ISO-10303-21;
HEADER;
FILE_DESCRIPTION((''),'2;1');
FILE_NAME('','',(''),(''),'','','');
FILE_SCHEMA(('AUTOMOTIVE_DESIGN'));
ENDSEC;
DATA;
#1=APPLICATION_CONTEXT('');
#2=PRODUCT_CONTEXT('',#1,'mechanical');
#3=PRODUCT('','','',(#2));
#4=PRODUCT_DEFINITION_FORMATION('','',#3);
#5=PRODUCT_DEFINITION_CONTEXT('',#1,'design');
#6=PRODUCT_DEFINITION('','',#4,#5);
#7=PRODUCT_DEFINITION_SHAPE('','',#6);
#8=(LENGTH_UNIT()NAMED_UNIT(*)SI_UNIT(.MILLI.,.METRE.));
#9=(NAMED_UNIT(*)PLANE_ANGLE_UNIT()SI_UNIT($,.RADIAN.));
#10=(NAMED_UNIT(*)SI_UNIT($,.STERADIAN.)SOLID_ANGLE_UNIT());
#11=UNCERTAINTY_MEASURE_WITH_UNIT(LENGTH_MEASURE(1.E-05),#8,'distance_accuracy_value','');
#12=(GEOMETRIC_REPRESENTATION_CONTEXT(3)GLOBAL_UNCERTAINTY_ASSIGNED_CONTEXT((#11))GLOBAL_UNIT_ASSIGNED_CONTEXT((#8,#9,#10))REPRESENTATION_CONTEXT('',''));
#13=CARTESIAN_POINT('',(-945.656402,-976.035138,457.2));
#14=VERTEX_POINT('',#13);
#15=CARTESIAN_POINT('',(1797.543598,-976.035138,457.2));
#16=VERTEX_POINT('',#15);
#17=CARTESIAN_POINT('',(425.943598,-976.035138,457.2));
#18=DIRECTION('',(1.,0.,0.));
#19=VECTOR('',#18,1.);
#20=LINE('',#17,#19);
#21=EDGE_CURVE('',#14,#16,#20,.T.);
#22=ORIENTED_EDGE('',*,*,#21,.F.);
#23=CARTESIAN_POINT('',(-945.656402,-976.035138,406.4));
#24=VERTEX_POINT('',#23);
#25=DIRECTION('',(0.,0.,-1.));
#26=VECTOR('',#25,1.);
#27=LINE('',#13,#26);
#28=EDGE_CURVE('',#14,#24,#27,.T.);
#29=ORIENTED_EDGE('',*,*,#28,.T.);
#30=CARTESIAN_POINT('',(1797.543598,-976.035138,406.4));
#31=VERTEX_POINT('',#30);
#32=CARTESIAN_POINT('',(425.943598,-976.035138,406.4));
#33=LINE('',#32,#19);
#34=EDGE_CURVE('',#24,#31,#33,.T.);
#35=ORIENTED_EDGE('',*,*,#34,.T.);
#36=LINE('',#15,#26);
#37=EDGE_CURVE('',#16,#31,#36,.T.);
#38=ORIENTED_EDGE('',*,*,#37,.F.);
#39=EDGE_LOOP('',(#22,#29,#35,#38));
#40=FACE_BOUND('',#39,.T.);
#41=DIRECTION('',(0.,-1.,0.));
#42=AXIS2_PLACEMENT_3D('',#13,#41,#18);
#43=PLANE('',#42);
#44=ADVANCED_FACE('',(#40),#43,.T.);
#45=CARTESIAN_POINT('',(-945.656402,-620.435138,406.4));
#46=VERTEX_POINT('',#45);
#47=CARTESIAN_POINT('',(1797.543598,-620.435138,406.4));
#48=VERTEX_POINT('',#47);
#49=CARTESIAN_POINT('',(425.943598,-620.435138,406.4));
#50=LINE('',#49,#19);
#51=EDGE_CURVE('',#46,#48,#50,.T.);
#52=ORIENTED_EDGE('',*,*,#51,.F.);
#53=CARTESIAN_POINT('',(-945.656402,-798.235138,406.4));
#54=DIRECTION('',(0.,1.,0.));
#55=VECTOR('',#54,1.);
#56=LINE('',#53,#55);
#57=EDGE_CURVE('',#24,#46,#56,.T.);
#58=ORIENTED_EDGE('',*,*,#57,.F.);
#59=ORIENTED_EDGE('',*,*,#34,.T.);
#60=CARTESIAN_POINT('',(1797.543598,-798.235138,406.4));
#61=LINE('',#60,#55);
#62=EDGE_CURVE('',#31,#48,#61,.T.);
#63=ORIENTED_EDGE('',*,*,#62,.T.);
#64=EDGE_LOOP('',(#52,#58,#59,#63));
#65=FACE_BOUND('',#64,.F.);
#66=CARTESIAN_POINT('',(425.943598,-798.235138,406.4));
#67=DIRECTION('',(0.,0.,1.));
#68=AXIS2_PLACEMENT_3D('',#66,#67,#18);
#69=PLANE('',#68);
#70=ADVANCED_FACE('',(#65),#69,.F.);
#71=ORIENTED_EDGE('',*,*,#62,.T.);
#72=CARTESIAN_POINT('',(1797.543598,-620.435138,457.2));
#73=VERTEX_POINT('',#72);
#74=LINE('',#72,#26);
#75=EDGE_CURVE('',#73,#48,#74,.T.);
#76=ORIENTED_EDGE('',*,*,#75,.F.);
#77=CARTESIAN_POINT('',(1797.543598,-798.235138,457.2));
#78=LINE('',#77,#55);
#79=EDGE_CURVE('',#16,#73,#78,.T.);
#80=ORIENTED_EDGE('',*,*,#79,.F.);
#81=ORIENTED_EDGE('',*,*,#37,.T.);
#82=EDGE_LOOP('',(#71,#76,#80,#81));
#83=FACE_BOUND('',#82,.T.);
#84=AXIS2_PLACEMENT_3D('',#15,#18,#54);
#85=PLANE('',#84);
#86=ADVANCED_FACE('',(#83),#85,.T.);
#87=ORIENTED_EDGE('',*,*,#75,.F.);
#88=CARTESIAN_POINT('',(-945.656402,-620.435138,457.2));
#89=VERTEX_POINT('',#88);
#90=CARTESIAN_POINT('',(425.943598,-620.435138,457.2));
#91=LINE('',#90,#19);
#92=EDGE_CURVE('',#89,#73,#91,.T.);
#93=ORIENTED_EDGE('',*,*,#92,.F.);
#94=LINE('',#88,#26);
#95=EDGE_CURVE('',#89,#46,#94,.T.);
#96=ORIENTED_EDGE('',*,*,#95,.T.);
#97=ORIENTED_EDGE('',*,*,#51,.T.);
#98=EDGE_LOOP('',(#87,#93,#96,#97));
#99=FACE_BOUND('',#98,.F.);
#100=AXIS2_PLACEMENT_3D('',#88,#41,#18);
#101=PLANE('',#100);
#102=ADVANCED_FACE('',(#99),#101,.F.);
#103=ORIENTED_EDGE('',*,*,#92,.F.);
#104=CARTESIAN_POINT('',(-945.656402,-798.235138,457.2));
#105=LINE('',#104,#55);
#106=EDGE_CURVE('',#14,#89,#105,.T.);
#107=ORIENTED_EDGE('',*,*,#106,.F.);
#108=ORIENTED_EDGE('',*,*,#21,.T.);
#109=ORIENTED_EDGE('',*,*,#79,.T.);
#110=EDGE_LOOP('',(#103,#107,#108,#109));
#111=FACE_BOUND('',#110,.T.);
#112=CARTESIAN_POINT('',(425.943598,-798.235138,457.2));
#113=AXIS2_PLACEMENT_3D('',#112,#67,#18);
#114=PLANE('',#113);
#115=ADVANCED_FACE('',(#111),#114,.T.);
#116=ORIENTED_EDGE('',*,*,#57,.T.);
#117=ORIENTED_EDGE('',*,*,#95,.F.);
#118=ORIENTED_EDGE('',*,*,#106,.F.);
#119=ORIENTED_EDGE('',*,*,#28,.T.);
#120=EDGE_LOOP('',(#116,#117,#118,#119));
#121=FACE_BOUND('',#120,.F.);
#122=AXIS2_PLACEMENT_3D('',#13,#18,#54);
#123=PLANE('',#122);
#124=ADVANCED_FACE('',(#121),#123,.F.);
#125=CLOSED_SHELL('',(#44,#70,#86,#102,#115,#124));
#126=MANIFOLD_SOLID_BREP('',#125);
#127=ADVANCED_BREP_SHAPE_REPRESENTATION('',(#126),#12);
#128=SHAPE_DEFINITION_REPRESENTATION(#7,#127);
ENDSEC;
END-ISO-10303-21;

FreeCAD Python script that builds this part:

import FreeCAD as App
import Part
import Sketcher

V = App.Vector
Q = App.Units.Quantity

doc = App.newDocument("Part")
params = doc.addObject("Spreadsheet::Sheet", "Params")
for row, (alias, value) in enumerate([
    ("sketch1_width", "108 in"),
    ("sketch1_height", "14 in"),
    ("pad1_length", "2 in"),
], start=1):
    params.set(f"A{row}", alias)
    params.set(f"B{row}", "=" + value)
    params.setAlias(f"B{row}", alias)

body = doc.addObject("PartDesign::Body", "Body")

# Sketch on XY plane
sketch1 = doc.addObject("Sketcher::SketchObject", "Sketch")
body.addObject(sketch1)
sketch1.AttachmentSupport = (doc.XY_Plane, [""])
sketch1.MapMode = "FlatFace"
sketch1.AttachmentOffset = App.Placement(V(0, 0, 18 * 25.4), App.Rotation())
sketch1.addGeometry([
    Part.LineSegment(V(-946, -620, 0), V(-946, -976, 0)),
    Part.LineSegment(V(-946, -976, 0), V(1798, -976, 0)),
    Part.LineSegment(V(1798, -976, 0), V(1798, -620, 0)),
    Part.LineSegment(V(1798, -620, 0), V(-946, -620, 0)),
], False)
sketch1.addConstraint([
    Sketcher.Constraint("Coincident", 0, 2, 1, 1),
    Sketcher.Constraint("Coincident", 1, 2, 2, 1),
    Sketcher.Constraint("Coincident", 2, 2, 3, 1),
    Sketcher.Constraint("Coincident", 3, 2, 0, 1),
    Sketcher.Constraint("Vertical", 0),
    Sketcher.Constraint("Horizontal", 1),
    Sketcher.Constraint("Vertical", 2),
    Sketcher.Constraint("Horizontal", 3),
    Sketcher.Constraint("DistanceX", 1, 1, 1, 2, Q("108 in")),
    Sketcher.Constraint("DistanceY", 0, 2, 0, 1, Q("14 in")),
    Sketcher.Constraint("DistanceX", 0, 2, -1, 1, Q("945.656402 mm")),
    Sketcher.Constraint("DistanceY", 0, 2, -1, 1, Q("976.035138 mm")),
])
sketch1.setExpression("Constraints[8]", "Params.sketch1_width")
sketch1.setExpression("Constraints[9]", "Params.sketch1_height")
pad1 = doc.addObject("PartDesign::Pad", "Pad")
body.addObject(pad1)
pad1.Profile = sketch1
pad1.setExpression("Length", "Params.pad1_length")
pad1.Reversed = True

doc.recompute()
